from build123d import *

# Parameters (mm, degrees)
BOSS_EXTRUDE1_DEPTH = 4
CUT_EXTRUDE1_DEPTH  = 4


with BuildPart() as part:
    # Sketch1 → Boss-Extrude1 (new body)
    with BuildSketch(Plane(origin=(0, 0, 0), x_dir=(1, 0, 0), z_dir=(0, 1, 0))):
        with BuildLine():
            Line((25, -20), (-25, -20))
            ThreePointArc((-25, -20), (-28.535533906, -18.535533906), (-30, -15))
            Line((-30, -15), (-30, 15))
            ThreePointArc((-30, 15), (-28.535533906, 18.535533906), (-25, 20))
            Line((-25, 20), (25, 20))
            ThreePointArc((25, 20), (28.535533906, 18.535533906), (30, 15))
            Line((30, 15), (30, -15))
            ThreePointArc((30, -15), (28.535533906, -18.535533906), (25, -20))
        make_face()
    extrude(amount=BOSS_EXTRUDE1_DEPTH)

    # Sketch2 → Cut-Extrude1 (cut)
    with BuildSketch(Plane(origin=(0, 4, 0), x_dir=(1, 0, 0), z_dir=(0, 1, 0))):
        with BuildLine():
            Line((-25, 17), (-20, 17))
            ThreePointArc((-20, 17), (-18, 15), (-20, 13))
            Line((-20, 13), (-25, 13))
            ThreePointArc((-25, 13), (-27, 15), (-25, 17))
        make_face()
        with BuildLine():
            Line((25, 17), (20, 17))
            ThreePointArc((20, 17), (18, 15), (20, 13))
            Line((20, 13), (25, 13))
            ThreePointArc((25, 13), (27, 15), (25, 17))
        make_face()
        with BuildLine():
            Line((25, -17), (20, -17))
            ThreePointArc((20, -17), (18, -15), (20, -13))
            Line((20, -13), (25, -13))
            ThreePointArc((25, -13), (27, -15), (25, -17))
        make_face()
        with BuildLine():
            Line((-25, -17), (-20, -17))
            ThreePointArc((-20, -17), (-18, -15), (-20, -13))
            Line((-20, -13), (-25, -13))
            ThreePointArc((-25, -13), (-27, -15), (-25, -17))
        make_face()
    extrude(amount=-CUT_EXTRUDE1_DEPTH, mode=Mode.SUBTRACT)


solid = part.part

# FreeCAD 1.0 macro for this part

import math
import FreeCAD as App
import Part
import Sketcher
from FreeCAD import Vector
Q = App.Units.Quantity

doc = App.newDocument("Part")
body = doc.addObject("PartDesign::Body", "Body")

# Sketch on XZ plane
sketch1 = doc.addObject("Sketcher::SketchObject", "Sketch")
body.addObject(sketch1)
sketch1.AttachmentSupport = (doc.XZ_Plane, [""])
sketch1.MapMode = "FlatFace"
sketch1.addGeometry([
    Part.LineSegment(Vector(-25, 20, 0), Vector(25, 20, 0)),  # 0
    Part.ArcOfCircle(Part.Circle(Vector(25, 15, 0), Vector(0, 0, 1), 5), math.radians(0), math.radians(90)),  # 1
    Part.LineSegment(Vector(30, 15, 0), Vector(30, -15, 0)),  # 2
    Part.ArcOfCircle(Part.Circle(Vector(25, -15, 0), Vector(0, 0, 1), 5), math.radians(-90), math.radians(0)),  # 3
    Part.LineSegment(Vector(25, -20, 0), Vector(-25, -20, 0)),  # 4
    Part.ArcOfCircle(Part.Circle(Vector(-25, -15, 0), Vector(0, 0, 1), 5), math.radians(180), math.radians(270)),  # 5
    Part.LineSegment(Vector(-30, -15, 0), Vector(-30, 15, 0)),  # 6
    Part.ArcOfCircle(Part.Circle(Vector(-25, 15, 0), Vector(0, 0, 1), 5), math.radians(90), math.radians(180)),  # 7
], False)
sketch1.addConstraint([
    Sketcher.Constraint("Tangent", 0, 2, 1, 2),
    Sketcher.Constraint("Tangent", 1, 1, 2, 1),
    Sketcher.Constraint("Tangent", 2, 2, 3, 2),
    Sketcher.Constraint("Tangent", 3, 1, 4, 1),
    Sketcher.Constraint("Tangent", 4, 2, 5, 2),
    Sketcher.Constraint("Tangent", 5, 1, 6, 1),
    Sketcher.Constraint("Tangent", 6, 2, 7, 2),
    Sketcher.Constraint("Tangent", 7, 1, 0, 1),
    Sketcher.Constraint("Horizontal", 0),
    Sketcher.Constraint("Vertical", 2),
    Sketcher.Constraint("Horizontal", 4),
    Sketcher.Constraint("Vertical", 6),
    Sketcher.Constraint("Equal", 1, 3),
    Sketcher.Constraint("Equal", 3, 5),
    Sketcher.Constraint("Equal", 5, 7),
    Sketcher.Constraint("Symmetric", 1, 3, 5, 3, -1, 1),
    Sketcher.Constraint("Radius", 1, Q("5 mm")),
    Sketcher.Constraint("DistanceX", 0, 1, 0, 2, Q("50 mm")),
    Sketcher.Constraint("DistanceY", 2, 2, 2, 1, Q("30 mm")),
])
pad1 = doc.addObject("PartDesign::Pad", "Pad")
body.addObject(pad1)
pad1.Profile = sketch1
pad1.Length = 4
pad1.Reversed = True

# Sketch on XZ plane
sketch2 = doc.addObject("Sketcher::SketchObject", "Sketch001")
body.addObject(sketch2)
sketch2.AttachmentSupport = (doc.XZ_Plane, [""])
sketch2.MapMode = "FlatFace"
sketch2.AttachmentOffset = App.Placement(Vector(0, 0, -4), App.Rotation())
sketch2.addGeometry([
    Part.LineSegment(Vector(-20, -17, 0), Vector(-25, -17, 0)),  # 0
    Part.ArcOfCircle(Part.Circle(Vector(-25, -15, 0), Vector(0, 0, 1), 2), math.radians(90), math.radians(270)),  # 1
    Part.LineSegment(Vector(-25, -13, 0), Vector(-20, -13, 0)),  # 2
    Part.ArcOfCircle(Part.Circle(Vector(-20, -15, 0), Vector(0, 0, 1), 2), math.radians(-90), math.radians(90)),  # 3
    Part.LineSegment(Vector(25, -17, 0), Vector(20, -17, 0)),  # 4
    Part.ArcOfCircle(Part.Circle(Vector(20, -15, 0), Vector(0, 0, 1), 2), math.radians(90), math.radians(270)),  # 5
    Part.LineSegment(Vector(20, -13, 0), Vector(25, -13, 0)),  # 6
    Part.ArcOfCircle(Part.Circle(Vector(25, -15, 0), Vector(0, 0, 1), 2), math.radians(-90), math.radians(90)),  # 7
    Part.LineSegment(Vector(20, 17, 0), Vector(25, 17, 0)),  # 8
    Part.ArcOfCircle(Part.Circle(Vector(25, 15, 0), Vector(0, 0, 1), 2), math.radians(-90), math.radians(90)),  # 9
    Part.LineSegment(Vector(25, 13, 0), Vector(20, 13, 0)),  # 10
    Part.ArcOfCircle(Part.Circle(Vector(20, 15, 0), Vector(0, 0, 1), 2), math.radians(90), math.radians(270)),  # 11
    Part.LineSegment(Vector(-25, 17, 0), Vector(-20, 17, 0)),  # 12
    Part.ArcOfCircle(Part.Circle(Vector(-20, 15, 0), Vector(0, 0, 1), 2), math.radians(-90), math.radians(90)),  # 13
    Part.LineSegment(Vector(-20, 13, 0), Vector(-25, 13, 0)),  # 14
    Part.ArcOfCircle(Part.Circle(Vector(-25, 15, 0), Vector(0, 0, 1), 2), math.radians(90), math.radians(270)),  # 15
], False)
sketch2.addConstraint([
    Sketcher.Constraint("Tangent", 0, 2, 1, 2),
    Sketcher.Constraint("Tangent", 1, 1, 2, 1),
    Sketcher.Constraint("Tangent", 2, 2, 3, 2),
    Sketcher.Constraint("Tangent", 3, 1, 0, 1),
    Sketcher.Constraint("Tangent", 4, 2, 5, 2),
    Sketcher.Constraint("Tangent", 5, 1, 6, 1),
    Sketcher.Constraint("Tangent", 6, 2, 7, 2),
    Sketcher.Constraint("Tangent", 7, 1, 4, 1),
    Sketcher.Constraint("Tangent", 8, 2, 9, 2),
    Sketcher.Constraint("Tangent", 9, 1, 10, 1),
    Sketcher.Constraint("Tangent", 10, 2, 11, 2),
    Sketcher.Constraint("Tangent", 11, 1, 8, 1),
    Sketcher.Constraint("Tangent", 12, 2, 13, 2),
    Sketcher.Constraint("Tangent", 13, 1, 14, 1),
    Sketcher.Constraint("Tangent", 14, 2, 15, 2),
    Sketcher.Constraint("Tangent", 15, 1, 12, 1),
    Sketcher.Constraint("Horizontal", 0),
    Sketcher.Constraint("Horizontal", 2),
    Sketcher.Constraint("Horizontal", 4),
    Sketcher.Constraint("Horizontal", 6),
    Sketcher.Constraint("Horizontal", 8),
    Sketcher.Constraint("Horizontal", 10),
    Sketcher.Constraint("Horizontal", 12),
    Sketcher.Constraint("Horizontal", 14),
    Sketcher.Constraint("Equal", 3, 5),
    Sketcher.Constraint("Equal", 7, 9),
    Sketcher.Constraint("Equal", 11, 13),
    Sketcher.Constraint("Symmetric", 1, 3, 9, 3, -1, 1),
    Sketcher.Constraint("Symmetric", 5, 3, 13, 3, -1, 1),
    Sketcher.Constraint("Symmetric", 3, 3, 5, 3, -2),
    Sketcher.Constraint("Vertical", 7, 3, 9, 3),
    Sketcher.Constraint("Vertical", 5, 3, 11, 3),
    Sketcher.Constraint("Vertical", 1, 3, 15, 3),
    Sketcher.Constraint("Radius", 1, Q("2 mm")),
    Sketcher.Constraint("DistanceX", 0, 2, 0, 1, Q("5 mm")),
    Sketcher.Constraint("DistanceX", 1, 3, -1, 1, Q("25 mm")),
    Sketcher.Constraint("DistanceY", 1, 3, -1, 1, Q("15 mm")),
])
pocket1 = doc.addObject("PartDesign::Pocket", "Pocket")
body.addObject(pocket1)
pocket1.Profile = sketch2
pocket1.Length = 4
pocket1.Reversed = True

doc.recompute()
